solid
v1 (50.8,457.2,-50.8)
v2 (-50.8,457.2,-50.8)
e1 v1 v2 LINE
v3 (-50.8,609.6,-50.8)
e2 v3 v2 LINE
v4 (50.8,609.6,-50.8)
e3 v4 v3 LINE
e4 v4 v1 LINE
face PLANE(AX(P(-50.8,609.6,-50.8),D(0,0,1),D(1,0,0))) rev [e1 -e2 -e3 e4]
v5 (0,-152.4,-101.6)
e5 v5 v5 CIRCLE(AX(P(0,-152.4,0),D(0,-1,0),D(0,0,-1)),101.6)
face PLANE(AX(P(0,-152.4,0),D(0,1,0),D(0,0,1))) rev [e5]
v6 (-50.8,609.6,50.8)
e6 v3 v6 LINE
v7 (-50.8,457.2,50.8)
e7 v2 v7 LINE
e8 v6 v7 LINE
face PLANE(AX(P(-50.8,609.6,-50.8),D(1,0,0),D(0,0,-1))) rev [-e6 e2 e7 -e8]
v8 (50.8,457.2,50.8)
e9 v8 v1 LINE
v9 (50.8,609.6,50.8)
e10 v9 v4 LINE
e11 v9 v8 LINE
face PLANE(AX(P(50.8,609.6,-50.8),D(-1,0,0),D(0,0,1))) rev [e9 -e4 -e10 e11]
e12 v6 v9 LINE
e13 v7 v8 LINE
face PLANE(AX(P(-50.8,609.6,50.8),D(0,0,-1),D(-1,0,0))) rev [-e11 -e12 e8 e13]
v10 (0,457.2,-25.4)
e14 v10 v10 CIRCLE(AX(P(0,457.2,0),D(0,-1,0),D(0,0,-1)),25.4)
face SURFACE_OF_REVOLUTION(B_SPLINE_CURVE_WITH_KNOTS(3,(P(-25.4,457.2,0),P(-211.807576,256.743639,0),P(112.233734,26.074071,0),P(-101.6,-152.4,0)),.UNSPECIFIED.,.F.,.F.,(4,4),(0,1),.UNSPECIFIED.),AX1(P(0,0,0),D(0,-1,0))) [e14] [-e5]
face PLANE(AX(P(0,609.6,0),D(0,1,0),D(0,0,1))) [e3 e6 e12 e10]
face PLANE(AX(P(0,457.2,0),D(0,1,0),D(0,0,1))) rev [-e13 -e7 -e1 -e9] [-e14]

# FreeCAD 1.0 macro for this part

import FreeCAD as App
import Part
import Sketcher

V = App.Vector
Q = App.Units.Quantity


def add_polygon(sketch, points):
    """Adds a closed chain of lines whose ends are joined by coincident constraints."""
    first, n = sketch.GeometryCount, len(points)
    for a, b in zip(points, points[1:] + points[:1]):
        sketch.addGeometry(Part.LineSegment(App.Vector(*a, 0), App.Vector(*b, 0)), False)
    for i in range(n):
        sketch.addConstraint(Sketcher.Constraint("Coincident", first + i, 2, first + (i + 1) % n, 1))

doc = App.newDocument("Part")
params = doc.addObject("Spreadsheet::Sheet", "Params")
for row, (alias, value) in enumerate([
    ("revolution_angle", "360 deg"),
    ("sketch2_width", "4 in"),
    ("pad1_length", "6 in"),
], start=1):
    params.set(f"A{row}", alias)
    params.set(f"B{row}", "=" + value)
    params.setAlias(f"B{row}", alias)

body = doc.addObject("PartDesign::Body", "Body")

# Sketch on XY plane
sketch1 = body.newObject("Sketcher::SketchObject", "Sketch")
sketch1.AttachmentSupport = (doc.getObject("XY_Plane"), [""])
sketch1.MapMode = "FlatFace"
sketch1.addGeometry(Part.LineSegment(V(-101.6, -152.4, 0), V(0, -152.4, 0)), False)
sketch1.addGeometry(Part.LineSegment(V(0, -152.4, 0), V(0, 457.2, 0)), False)
sketch1.addGeometry(Part.LineSegment(V(0, 457.2, 0), V(-25.4, 457.2, 0)), False)
sketch1.addGeometry(Part.BSplineCurve([V(-101.6, -152.4, 0), V(112.233734, 26.074071, 0), V(-211.807576, 256.743639, 0), V(-25.4, 457.2, 0)], [4, 4], [0, 1], False, 3, [1, 1, 1, 1], False), False)
sketch1.addConstraint(Sketcher.Constraint("Block", 3))
sketch1.addConstraint(Sketcher.Constraint("Coincident", 0, 2, 1, 1))
sketch1.addConstraint(Sketcher.Constraint("Coincident", 1, 2, 2, 1))
sketch1.addConstraint(Sketcher.Constraint("Coincident", 2, 2, 3, 2))
sketch1.addConstraint(Sketcher.Constraint("Coincident", 3, 1, 0, 1))
sketch1.addConstraint(Sketcher.Constraint("Horizontal", 0))
sketch1.addConstraint(Sketcher.Constraint("Vertical", 1))
sketch1.addConstraint(Sketcher.Constraint("Horizontal", 2))
sketch1.addConstraint(Sketcher.Constraint("PointOnObject", 0, 2, -2))
revolution = body.newObject("PartDesign::Revolution", "Revolution")
revolution.Profile = sketch1
revolution.ReferenceAxis = (sketch1, ["V_Axis"])
revolution.setExpression("Angle", "Params.revolution_angle")

# Sketch on XZ plane
sketch2 = body.newObject("Sketcher::SketchObject", "Sketch001")
sketch2.AttachmentSupport = (doc.getObject("XZ_Plane"), [""])
sketch2.MapMode = "FlatFace"
sketch2.AttachmentOffset = App.Placement(V(0, 0, -18 * 25.4), App.Rotation())
add_polygon(sketch2, [(-51, -51), (-51, 51), (51, 51), (51, -51)])  # lines 0-3
sketch2.addConstraint(Sketcher.Constraint("Vertical", 0))
sketch2.addConstraint(Sketcher.Constraint("Horizontal", 1))
sketch2.addConstraint(Sketcher.Constraint("Vertical", 2))
sketch2.addConstraint(Sketcher.Constraint("Horizontal", 3))
sketch2.addConstraint(Sketcher.Constraint("Symmetric", 0, 2, 2, 2, -1, 1))
sketch2.addConstraint(Sketcher.Constraint("Equal", 3, 0))
sketch2.addConstraint(Sketcher.Constraint("DistanceX", 1, 1, 1, 2, Q("4 in")))
sketch2.setExpression("Constraints[10]", "Params.sketch2_width")
pad1 = body.newObject("PartDesign::Pad", "Pad")
pad1.Profile = sketch2
pad1.setExpression("Length", "Params.pad1_length")
pad1.Reversed = True

doc.recompute()
